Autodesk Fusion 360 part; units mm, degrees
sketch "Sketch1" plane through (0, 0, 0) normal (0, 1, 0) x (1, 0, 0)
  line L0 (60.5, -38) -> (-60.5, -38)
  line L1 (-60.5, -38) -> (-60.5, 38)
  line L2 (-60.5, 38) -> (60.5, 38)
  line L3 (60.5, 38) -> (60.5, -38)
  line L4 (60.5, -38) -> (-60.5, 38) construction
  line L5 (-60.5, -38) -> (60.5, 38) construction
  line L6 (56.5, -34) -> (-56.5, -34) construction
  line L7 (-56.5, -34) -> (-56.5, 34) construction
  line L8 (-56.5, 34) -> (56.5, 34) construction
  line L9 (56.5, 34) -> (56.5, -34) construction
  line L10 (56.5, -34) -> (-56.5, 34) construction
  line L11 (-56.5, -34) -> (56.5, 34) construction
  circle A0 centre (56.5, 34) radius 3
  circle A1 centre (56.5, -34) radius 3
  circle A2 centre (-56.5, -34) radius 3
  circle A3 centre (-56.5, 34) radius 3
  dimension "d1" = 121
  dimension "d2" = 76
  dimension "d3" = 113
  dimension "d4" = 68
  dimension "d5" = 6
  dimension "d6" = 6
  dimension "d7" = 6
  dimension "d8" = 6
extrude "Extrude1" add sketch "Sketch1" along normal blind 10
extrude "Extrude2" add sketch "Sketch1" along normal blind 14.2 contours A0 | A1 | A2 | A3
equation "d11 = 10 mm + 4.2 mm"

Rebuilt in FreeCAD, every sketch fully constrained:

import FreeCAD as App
import Part
import Sketcher
Q = App.Units.Quantity


def add_polygon(sketch, points):
    """Adds a closed chain of lines whose ends are joined by coincident constraints."""
    first, n = sketch.GeometryCount, len(points)
    for a, b in zip(points, points[1:] + points[:1]):
        sketch.addGeometry(Part.LineSegment(App.Vector(*a, 0), App.Vector(*b, 0)), False)
    for i in range(n):
        sketch.addConstraint(Sketcher.Constraint("Coincident", first + i, 2, first + (i + 1) % n, 1))

doc = App.newDocument("Part")
body = doc.addObject("PartDesign::Body", "Body")

# Sketch on XZ plane
sketch1 = body.newObject("Sketcher::SketchObject", "Sketch")
sketch1.AttachmentSupport = (doc.getObject("XZ_Plane"), [""])
sketch1.MapMode = "FlatFace"
add_polygon(sketch1, [(-60.5, 38), (60.5, 38), (60.5, -38), (-60.5, -38)])  # lines 0-3
sketch1.addGeometry(Part.Circle(App.Vector(-56.5, 34, 0), App.Vector(0, 0, 1), 3), False)  # 4
sketch1.addGeometry(Part.Circle(App.Vector(56.5, 34, 0), App.Vector(0, 0, 1), 3), False)  # 5
sketch1.addGeometry(Part.Circle(App.Vector(-56.5, -34, 0), App.Vector(0, 0, 1), 3), False)  # 6
sketch1.addGeometry(Part.Circle(App.Vector(56.5, -34, 0), App.Vector(0, 0, 1), 3), False)  # 7
sketch1.addConstraint([
    Sketcher.Constraint("Horizontal", 0),
    Sketcher.Constraint("Vertical", 1),
    Sketcher.Constraint("Horizontal", 2),
    Sketcher.Constraint("Vertical", 3),
    Sketcher.Constraint("Equal", 4, 5),
    Sketcher.Constraint("Equal", 5, 6),
    Sketcher.Constraint("Equal", 6, 7),
    Sketcher.Constraint("Symmetric", 5, 3, 6, 3, -1, 1),
    Sketcher.Constraint("Symmetric", 4, 3, 7, 3, -1, 1),
    Sketcher.Constraint("Symmetric", 0, 2, 2, 2, -1, 1),
    Sketcher.Constraint("Symmetric", 4, 3, 5, 3, -2),
    Sketcher.Constraint("Diameter", 4, Q("6 mm")),
    Sketcher.Constraint("DistanceX", 0, 1, 0, 2, Q("121 mm")),
    Sketcher.Constraint("DistanceY", 1, 2, 1, 1, Q("76 mm")),
    Sketcher.Constraint("DistanceX", 4, 3, 5, 3, Q("113 mm")),
    Sketcher.Constraint("DistanceY", 6, 3, 4, 3, Q("68 mm")),
])
pad1 = body.newObject("PartDesign::Pad", "Pad")
pad1.Profile = sketch1
pad1.Length = 10
pad1.Reversed = True

# Sketch on XZ plane
sketch2 = body.newObject("Sketcher::SketchObject", "Sketch001")
sketch2.AttachmentSupport = (doc.getObject("XZ_Plane"), [""])
sketch2.MapMode = "FlatFace"
sketch2.addGeometry([
    Part.Circle(App.Vector(56.5, -34, 0), App.Vector(0, 0, 1), 3),
    Part.Circle(App.Vector(56.5, 34, 0), App.Vector(0, 0, 1), 3),
    Part.Circle(App.Vector(-56.5, 34, 0), App.Vector(0, 0, 1), 3),
    Part.Circle(App.Vector(-56.5, -34, 0), App.Vector(0, 0, 1), 3),
], False)
sketch2.addConstraint([
    Sketcher.Constraint("Equal", 0, 1),
    Sketcher.Constraint("Equal", 1, 2),
    Sketcher.Constraint("Equal", 2, 3),
    Sketcher.Constraint("Symmetric", 0, 3, 2, 3, -1, 1),
    Sketcher.Constraint("Symmetric", 1, 3, 3, 3, -1, 1),
    Sketcher.Constraint("Symmetric", 1, 3, 2, 3, -2),
    Sketcher.Constraint("Diameter", 0, Q("6 mm")),
    Sketcher.Constraint("DistanceY", 0, 3, 1, 3, Q("68 mm")),
    Sketcher.Constraint("DistanceX", 2, 3, 1, 3, Q("113 mm")),
])
pad2 = body.newObject("PartDesign::Pad", "Pad001")
pad2.Profile = sketch2
pad2.Length = 14.2
pad2.Reversed = True

doc.recompute()
